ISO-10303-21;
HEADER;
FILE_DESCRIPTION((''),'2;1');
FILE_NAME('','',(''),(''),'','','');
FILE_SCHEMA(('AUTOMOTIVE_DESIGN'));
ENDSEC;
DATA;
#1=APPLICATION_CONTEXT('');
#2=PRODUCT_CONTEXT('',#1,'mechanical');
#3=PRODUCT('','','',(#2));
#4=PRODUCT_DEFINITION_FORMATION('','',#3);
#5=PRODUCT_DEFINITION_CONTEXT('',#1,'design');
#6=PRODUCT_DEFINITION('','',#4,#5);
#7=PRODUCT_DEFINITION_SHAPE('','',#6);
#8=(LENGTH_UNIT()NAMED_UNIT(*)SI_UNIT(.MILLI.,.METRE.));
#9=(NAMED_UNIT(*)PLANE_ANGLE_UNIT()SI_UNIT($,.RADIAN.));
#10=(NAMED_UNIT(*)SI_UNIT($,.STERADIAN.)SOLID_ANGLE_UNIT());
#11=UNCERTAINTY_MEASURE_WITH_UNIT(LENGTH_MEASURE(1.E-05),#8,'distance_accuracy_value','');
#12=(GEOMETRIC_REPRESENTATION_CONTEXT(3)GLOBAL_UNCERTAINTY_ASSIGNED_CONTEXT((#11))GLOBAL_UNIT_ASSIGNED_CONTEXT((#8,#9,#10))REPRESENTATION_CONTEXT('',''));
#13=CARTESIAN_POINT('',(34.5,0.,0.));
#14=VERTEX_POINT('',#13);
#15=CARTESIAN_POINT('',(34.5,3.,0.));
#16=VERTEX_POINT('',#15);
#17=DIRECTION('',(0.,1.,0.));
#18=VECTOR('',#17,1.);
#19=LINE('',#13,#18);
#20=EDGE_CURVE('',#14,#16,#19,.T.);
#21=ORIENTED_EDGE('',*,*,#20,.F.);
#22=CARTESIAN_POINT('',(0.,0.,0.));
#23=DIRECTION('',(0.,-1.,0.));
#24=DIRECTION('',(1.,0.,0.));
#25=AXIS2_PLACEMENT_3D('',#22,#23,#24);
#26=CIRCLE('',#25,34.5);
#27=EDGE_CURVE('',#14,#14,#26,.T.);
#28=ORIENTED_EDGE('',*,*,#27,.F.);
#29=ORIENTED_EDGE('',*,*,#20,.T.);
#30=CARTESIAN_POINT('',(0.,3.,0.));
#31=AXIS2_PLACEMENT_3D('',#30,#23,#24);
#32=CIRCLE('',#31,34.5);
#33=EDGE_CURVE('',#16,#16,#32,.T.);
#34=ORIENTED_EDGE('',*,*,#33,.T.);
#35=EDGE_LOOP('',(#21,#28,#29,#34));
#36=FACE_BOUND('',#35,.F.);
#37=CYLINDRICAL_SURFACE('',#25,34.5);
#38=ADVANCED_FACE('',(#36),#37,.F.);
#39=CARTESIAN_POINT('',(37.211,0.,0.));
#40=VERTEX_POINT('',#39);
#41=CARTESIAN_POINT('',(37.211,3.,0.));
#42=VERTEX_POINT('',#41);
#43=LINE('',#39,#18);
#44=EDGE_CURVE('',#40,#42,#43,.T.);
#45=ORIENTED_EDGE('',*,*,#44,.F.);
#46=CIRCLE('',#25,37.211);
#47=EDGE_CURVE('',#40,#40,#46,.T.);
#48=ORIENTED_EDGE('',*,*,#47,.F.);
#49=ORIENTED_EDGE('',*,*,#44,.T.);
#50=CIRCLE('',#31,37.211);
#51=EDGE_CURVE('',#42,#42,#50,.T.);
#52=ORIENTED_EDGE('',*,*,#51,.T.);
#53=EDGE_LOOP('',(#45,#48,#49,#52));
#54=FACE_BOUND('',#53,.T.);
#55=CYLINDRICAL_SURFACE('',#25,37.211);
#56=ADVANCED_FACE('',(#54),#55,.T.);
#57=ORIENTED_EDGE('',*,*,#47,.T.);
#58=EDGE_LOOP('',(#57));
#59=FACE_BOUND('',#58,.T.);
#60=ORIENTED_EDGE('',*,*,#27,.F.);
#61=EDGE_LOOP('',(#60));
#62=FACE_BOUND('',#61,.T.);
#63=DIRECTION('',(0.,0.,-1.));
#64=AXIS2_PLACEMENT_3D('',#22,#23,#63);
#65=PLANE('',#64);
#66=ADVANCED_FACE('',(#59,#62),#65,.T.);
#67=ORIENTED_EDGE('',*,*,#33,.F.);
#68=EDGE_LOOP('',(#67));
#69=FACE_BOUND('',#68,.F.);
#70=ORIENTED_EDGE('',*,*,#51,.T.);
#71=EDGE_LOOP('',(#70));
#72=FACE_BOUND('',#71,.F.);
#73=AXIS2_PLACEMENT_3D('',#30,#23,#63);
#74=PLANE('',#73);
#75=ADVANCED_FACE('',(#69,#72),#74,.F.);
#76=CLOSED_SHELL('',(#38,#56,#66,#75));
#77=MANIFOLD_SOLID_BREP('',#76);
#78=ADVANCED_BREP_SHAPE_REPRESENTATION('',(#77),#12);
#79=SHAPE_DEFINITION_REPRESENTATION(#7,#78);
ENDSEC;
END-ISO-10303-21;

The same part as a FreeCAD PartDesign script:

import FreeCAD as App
import Part
import Sketcher

V = App.Vector
Q = App.Units.Quantity

doc = App.newDocument("Part")
params = doc.addObject("Spreadsheet::Sheet", "Params")
for row, (alias, value) in enumerate([
    ("sketch1_diameter", "69 mm"),
    ("pad1_length", "3 mm"),
], start=1):
    params.set(f"A{row}", alias)
    params.set(f"B{row}", "=" + value)
    params.setAlias(f"B{row}", alias)

body = doc.addObject("PartDesign::Body", "Body")

sketch1 = body.newObject("Sketcher::SketchObject", "Sketch")
sketch1.AttachmentSupport = (doc.getObject("XZ_Plane"), [""])
sketch1.MapMode = "FlatFace"
sketch1.addGeometry([
    Part.Circle(V(0, 0, 0), V(0, 0, 1), 37),
    Part.Circle(V(0, 0, 0), V(0, 0, 1), 34),
], False)
sketch1.addConstraint([
    Sketcher.Constraint("Coincident", 0, 3, -1, 1),
    Sketcher.Constraint("Coincident", 1, 3, -1, 1),
    Sketcher.Constraint("Diameter", 1, Q("69 mm")),
    Sketcher.Constraint("Diameter", 0, Q("74.422 mm")),
])
sketch1.setExpression("Constraints[2]", "Params.sketch1_diameter")
pad1 = body.newObject("PartDesign::Pad", "Pad")
pad1.Profile = sketch1
pad1.setExpression("Length", "Params.pad1_length")
pad1.Reversed = True

doc.recompute()
